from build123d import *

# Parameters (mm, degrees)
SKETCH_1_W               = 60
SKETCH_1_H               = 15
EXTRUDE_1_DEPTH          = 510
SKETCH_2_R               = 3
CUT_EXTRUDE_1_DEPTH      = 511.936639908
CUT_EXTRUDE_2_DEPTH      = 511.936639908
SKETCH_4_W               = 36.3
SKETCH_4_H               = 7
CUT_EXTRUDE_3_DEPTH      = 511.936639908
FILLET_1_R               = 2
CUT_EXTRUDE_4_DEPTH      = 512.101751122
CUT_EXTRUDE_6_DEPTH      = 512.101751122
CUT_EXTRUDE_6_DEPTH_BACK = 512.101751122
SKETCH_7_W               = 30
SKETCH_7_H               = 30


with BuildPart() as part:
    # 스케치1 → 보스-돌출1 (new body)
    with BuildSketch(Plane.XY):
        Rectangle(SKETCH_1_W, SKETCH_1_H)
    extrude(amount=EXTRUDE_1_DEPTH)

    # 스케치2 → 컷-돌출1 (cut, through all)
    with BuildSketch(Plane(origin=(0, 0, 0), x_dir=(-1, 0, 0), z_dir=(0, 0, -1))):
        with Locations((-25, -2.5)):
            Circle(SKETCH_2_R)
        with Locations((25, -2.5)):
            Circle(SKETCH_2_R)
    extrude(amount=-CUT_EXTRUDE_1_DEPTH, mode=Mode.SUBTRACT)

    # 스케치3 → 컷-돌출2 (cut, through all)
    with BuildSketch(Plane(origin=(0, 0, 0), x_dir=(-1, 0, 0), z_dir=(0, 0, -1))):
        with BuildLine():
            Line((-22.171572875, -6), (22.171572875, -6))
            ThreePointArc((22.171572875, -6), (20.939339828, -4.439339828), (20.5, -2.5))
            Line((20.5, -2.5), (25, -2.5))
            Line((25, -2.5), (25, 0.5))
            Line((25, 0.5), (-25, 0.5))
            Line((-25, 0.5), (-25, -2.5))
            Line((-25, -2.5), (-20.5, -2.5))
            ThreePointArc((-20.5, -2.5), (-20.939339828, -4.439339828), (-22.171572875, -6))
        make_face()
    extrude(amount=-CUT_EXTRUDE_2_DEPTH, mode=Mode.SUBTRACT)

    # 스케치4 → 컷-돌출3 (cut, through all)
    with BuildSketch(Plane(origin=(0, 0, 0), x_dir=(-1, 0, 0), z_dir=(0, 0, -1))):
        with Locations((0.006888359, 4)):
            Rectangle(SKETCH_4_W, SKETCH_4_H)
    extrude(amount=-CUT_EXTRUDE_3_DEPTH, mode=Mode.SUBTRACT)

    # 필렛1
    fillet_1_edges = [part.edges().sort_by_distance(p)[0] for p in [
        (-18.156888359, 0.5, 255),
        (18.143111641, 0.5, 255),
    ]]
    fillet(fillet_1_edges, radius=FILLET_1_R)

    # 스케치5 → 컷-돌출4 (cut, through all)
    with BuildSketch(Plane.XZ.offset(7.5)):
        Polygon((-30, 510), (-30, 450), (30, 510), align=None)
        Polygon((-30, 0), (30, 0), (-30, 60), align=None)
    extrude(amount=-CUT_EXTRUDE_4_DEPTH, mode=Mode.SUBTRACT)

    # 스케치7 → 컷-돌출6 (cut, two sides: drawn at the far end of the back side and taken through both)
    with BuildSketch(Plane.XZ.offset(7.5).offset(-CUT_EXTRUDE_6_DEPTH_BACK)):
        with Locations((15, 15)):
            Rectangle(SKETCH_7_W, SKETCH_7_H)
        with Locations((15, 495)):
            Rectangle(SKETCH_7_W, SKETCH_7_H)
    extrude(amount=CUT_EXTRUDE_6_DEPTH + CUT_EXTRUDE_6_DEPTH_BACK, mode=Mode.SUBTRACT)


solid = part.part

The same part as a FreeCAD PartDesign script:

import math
import FreeCAD as App
import Part
import Sketcher
Q = App.Units.Quantity


def edges_at(feature, points):
    """Names of the edges that pass closest to the given points."""
    edges = feature.Shape.Edges
    near = lambda p: min(range(len(edges)), key=lambda i: edges[i].distToShape(Part.Vertex(*p))[0])
    return sorted({f"Edge{near(p) + 1}" for p in points})


def add_polygon(sketch, points):
    """Adds a closed chain of lines whose ends are joined by coincident constraints."""
    first, n = sketch.GeometryCount, len(points)
    for a, b in zip(points, points[1:] + points[:1]):
        sketch.addGeometry(Part.LineSegment(App.Vector(*a, 0), App.Vector(*b, 0)), False)
    for i in range(n):
        sketch.addConstraint(Sketcher.Constraint("Coincident", first + i, 2, first + (i + 1) % n, 1))

doc = App.newDocument("Part")
body = doc.addObject("PartDesign::Body", "Body")

# Sketch on XY plane
sketch1 = body.newObject("Sketcher::SketchObject", "Sketch")
sketch1.AttachmentSupport = (doc.getObject("XY_Plane"), [""])
sketch1.MapMode = "FlatFace"
add_polygon(sketch1, [(-30, 8), (-30, -8), (30, -8), (30, 8)])  # lines 0-3
sketch1.addConstraint(Sketcher.Constraint("Vertical", 0))
sketch1.addConstraint(Sketcher.Constraint("Horizontal", 1))
sketch1.addConstraint(Sketcher.Constraint("Vertical", 2))
sketch1.addConstraint(Sketcher.Constraint("Horizontal", 3))
sketch1.addConstraint(Sketcher.Constraint("Symmetric", 0, 2, 2, 2, -1, 1))
sketch1.addConstraint(Sketcher.Constraint("DistanceX", 1, 1, 1, 2, Q("60 mm")))
sketch1.addConstraint(Sketcher.Constraint("DistanceY", 0, 2, 0, 1, Q("15 mm")))
pad1 = body.newObject("PartDesign::Pad", "Pad")
pad1.Profile = sketch1
pad1.Length = 510

# Sketch on XY plane
sketch2 = body.newObject("Sketcher::SketchObject", "Sketch001")
sketch2.AttachmentSupport = (doc.getObject("XY_Plane"), [""])
sketch2.MapMode = "FlatFace"
sketch2.addGeometry(Part.Circle(App.Vector(25, -2.5, 0), App.Vector(0, 0, 1), 3), False)
sketch2.addGeometry(Part.Circle(App.Vector(-25, -2.5, 0), App.Vector(0, 0, 1), 3), False)
sketch2.addConstraint(Sketcher.Constraint("Equal", 0, 1))
sketch2.addConstraint(Sketcher.Constraint("Symmetric", 0, 3, 1, 3, -2))
sketch2.addConstraint(Sketcher.Constraint("Diameter", 0, Q("6 mm")))
sketch2.addConstraint(Sketcher.Constraint("DistanceX", -1, 1, 0, 3, Q("25 mm")))
sketch2.addConstraint(Sketcher.Constraint("DistanceY", 0, 3, -1, 1, Q("2.5 mm")))
pocket1 = body.newObject("PartDesign::Pocket", "Pocket")
pocket1.Profile = sketch2
pocket1.Type = "ThroughAll"
pocket1.Reversed = True

# Sketch on XY plane
sketch3 = body.newObject("Sketcher::SketchObject", "Sketch002")
sketch3.AttachmentSupport = (doc.getObject("XY_Plane"), [""])
sketch3.MapMode = "FlatFace"
sketch3.addGeometry(Part.LineSegment(App.Vector(22.2, -6, 0), App.Vector(-22.2, -6, 0)), False)
sketch3.addGeometry(Part.ArcOfCircle(Part.Circle(App.Vector(-25, -2.5, 0), App.Vector(0, 0, 1), 4.5), math.radians(-51), math.radians(0)), False)
sketch3.addGeometry(Part.LineSegment(App.Vector(-20.5, -2.5, 0), App.Vector(-25, -2.5, 0)), False)
sketch3.addGeometry(Part.LineSegment(App.Vector(-25, -2.5, 0), App.Vector(-25, 0.5, 0)), False)
sketch3.addGeometry(Part.LineSegment(App.Vector(-25, 0.5, 0), App.Vector(25, 0.5, 0)), False)
sketch3.addGeometry(Part.LineSegment(App.Vector(25, 0.5, 0), App.Vector(25, -2.5, 0)), False)
sketch3.addGeometry(Part.LineSegment(App.Vector(25, -2.5, 0), App.Vector(20.5, -2.5, 0)), False)
sketch3.addGeometry(Part.ArcOfCircle(Part.Circle(App.Vector(25, -2.5, 0), App.Vector(0, 0, 1), 4.5), math.radians(180), math.radians(231)), False)
sketch3.addConstraint(Sketcher.Constraint("Coincident", 0, 2, 1, 1))
sketch3.addConstraint(Sketcher.Constraint("Coincident", 1, 2, 2, 1))
sketch3.addConstraint(Sketcher.Constraint("Coincident", 2, 2, 3, 1))
sketch3.addConstraint(Sketcher.Constraint("Coincident", 3, 2, 4, 1))
sketch3.addConstraint(Sketcher.Constraint("Coincident", 4, 2, 5, 1))
sketch3.addConstraint(Sketcher.Constraint("Coincident", 5, 2, 6, 1))
sketch3.addConstraint(Sketcher.Constraint("Coincident", 6, 2, 7, 1))
sketch3.addConstraint(Sketcher.Constraint("Coincident", 7, 2, 0, 1))
sketch3.addConstraint(Sketcher.Constraint("Horizontal", 0))
sketch3.addConstraint(Sketcher.Constraint("Horizontal", 2))
sketch3.addConstraint(Sketcher.Constraint("Vertical", 3))
sketch3.addConstraint(Sketcher.Constraint("Horizontal", 4))
sketch3.addConstraint(Sketcher.Constraint("Vertical", 5))
sketch3.addConstraint(Sketcher.Constraint("Horizontal", 6))
sketch3.addConstraint(Sketcher.Constraint("Coincident", 2, 2, 1, 3))
sketch3.addConstraint(Sketcher.Constraint("Coincident", 5, 2, 7, 3))
sketch3.addConstraint(Sketcher.Constraint("Equal", 1, 7))
sketch3.addConstraint(Sketcher.Constraint("Symmetric", 1, 3, 7, 3, -2))
sketch3.addConstraint(Sketcher.Constraint("Radius", 1, Q("4.5 mm")))
sketch3.addConstraint(Sketcher.Constraint("DistanceX", 4, 1, 4, 2, Q("50 mm")))
sketch3.addConstraint(Sketcher.Constraint("DistanceY", 3, 1, 3, 2, Q("3 mm")))
sketch3.addConstraint(Sketcher.Constraint("DistanceY", 0, 2, -1, 1, Q("6 mm")))
sketch3.addConstraint(Sketcher.Constraint("DistanceY", 1, 3, -1, 1, Q("2.5 mm")))
pocket2 = body.newObject("PartDesign::Pocket", "Pocket001")
pocket2.Profile = sketch3
pocket2.Type = "ThroughAll"
pocket2.Reversed = True

# Sketch on XY plane
sketch4 = body.newObject("Sketcher::SketchObject", "Sketch003")
sketch4.AttachmentSupport = (doc.getObject("XY_Plane"), [""])
sketch4.MapMode = "FlatFace"
add_polygon(sketch4, [(18, 8), (18, 0), (-18, 0), (-18, 8)])  # lines 0-3
sketch4.addConstraint(Sketcher.Constraint("Vertical", 0))
sketch4.addConstraint(Sketcher.Constraint("Horizontal", 1))
sketch4.addConstraint(Sketcher.Constraint("Vertical", 2))
sketch4.addConstraint(Sketcher.Constraint("Horizontal", 3))
sketch4.addConstraint(Sketcher.Constraint("DistanceY", 0, 2, 0, 1, Q("7 mm")))
sketch4.addConstraint(Sketcher.Constraint("DistanceX", 1, 2, 1, 1, Q("36.3 mm")))
sketch4.addConstraint(Sketcher.Constraint("DistanceY", -1, 1, 0, 2, Q("0.5 mm")))
sketch4.addConstraint(Sketcher.Constraint("DistanceX", -1, 1, 0, 2, Q("18.143112 mm")))
pocket3 = body.newObject("PartDesign::Pocket", "Pocket002")
pocket3.Profile = sketch4
pocket3.Type = "ThroughAll"
pocket3.Reversed = True
doc.recompute()

fillet = body.newObject("PartDesign::Fillet", "Fillet")
fillet.Base = (pocket3, edges_at(pocket3, [(-18.157, 0.5, 255), (18.143, 0.5, 255)]))
fillet.Radius = 2

# Sketch on XZ plane
sketch5 = body.newObject("Sketcher::SketchObject", "Sketch004")
sketch5.AttachmentSupport = (doc.getObject("XZ_Plane"), [""])
sketch5.MapMode = "FlatFace"
sketch5.AttachmentOffset = App.Placement(App.Vector(0, 0, 7.5), App.Rotation())
add_polygon(sketch5, [(-30, 510), (-30, 450), (30, 510)])  # lines 0-2
add_polygon(sketch5, [(-30, 0), (30, 0), (-30, 60)])  # lines 3-5
sketch5.addConstraint(Sketcher.Constraint("Vertical", 0))
sketch5.addConstraint(Sketcher.Constraint("Horizontal", 2))
sketch5.addConstraint(Sketcher.Constraint("Horizontal", 3))
sketch5.addConstraint(Sketcher.Constraint("Vertical", 5))
sketch5.addConstraint(Sketcher.Constraint("Symmetric", 3, 2, 5, 2, -1, 1))
sketch5.addConstraint(Sketcher.Constraint("Perpendicular", 1, 4))
sketch5.addConstraint(Sketcher.Constraint("Vertical", 1, 2, 3, 2))
sketch5.addConstraint(Sketcher.Constraint("Vertical", 2, 2, 4, 2))
sketch5.addConstraint(Sketcher.Constraint("Equal", 3, 0))
sketch5.addConstraint(Sketcher.Constraint("DistanceX", 2, 2, 2, 1, Q("60 mm")))
sketch5.addConstraint(Sketcher.Constraint("DistanceY", -1, 1, 0, 2, Q("450 mm")))
pocket4 = body.newObject("PartDesign::Pocket", "Pocket003")
pocket4.Profile = sketch5
pocket4.Type = "ThroughAll"

# Sketch on XZ plane
sketch6 = body.newObject("Sketcher::SketchObject", "Sketch005")
sketch6.AttachmentSupport = (doc.getObject("XZ_Plane"), [""])
sketch6.MapMode = "FlatFace"
sketch6.AttachmentOffset = App.Placement(App.Vector(0, 0, 7.5), App.Rotation())
add_polygon(sketch6, [(0, 30), (0, 0), (30, 0), (30, 30)])  # lines 0-3
add_polygon(sketch6, [(0, 510), (0, 480), (30, 480), (30, 510)])  # lines 4-7
sketch6.addConstraint(Sketcher.Constraint("Vertical", 0))
sketch6.addConstraint(Sketcher.Constraint("Horizontal", 1))
sketch6.addConstraint(Sketcher.Constraint("Vertical", 2))
sketch6.addConstraint(Sketcher.Constraint("Horizontal", 3))
sketch6.addConstraint(Sketcher.Constraint("Vertical", 4))
sketch6.addConstraint(Sketcher.Constraint("Horizontal", 5))
sketch6.addConstraint(Sketcher.Constraint("Vertical", 6))
sketch6.addConstraint(Sketcher.Constraint("Horizontal", 7))
sketch6.addConstraint(Sketcher.Constraint("Coincident", 0, 2, -1, 1))
sketch6.addConstraint(Sketcher.Constraint("PointOnObject", 4, 2, -2))
sketch6.addConstraint(Sketcher.Constraint("Vertical", 2, 2, 5, 2))
sketch6.addConstraint(Sketcher.Constraint("Equal", 7, 0))
sketch6.addConstraint(Sketcher.Constraint("Equal", 2, 4))
sketch6.addConstraint(Sketcher.Constraint("DistanceX", 1, 1, 1, 2, Q("30 mm")))
sketch6.addConstraint(Sketcher.Constraint("DistanceY", -1, 1, 4, 2, Q("480 mm")))
pocket5 = body.newObject("PartDesign::Pocket", "Pocket004")
pocket5.Profile = sketch6
pocket5.Type = "ThroughAll"
pocket5.Midplane = True

doc.recompute()
